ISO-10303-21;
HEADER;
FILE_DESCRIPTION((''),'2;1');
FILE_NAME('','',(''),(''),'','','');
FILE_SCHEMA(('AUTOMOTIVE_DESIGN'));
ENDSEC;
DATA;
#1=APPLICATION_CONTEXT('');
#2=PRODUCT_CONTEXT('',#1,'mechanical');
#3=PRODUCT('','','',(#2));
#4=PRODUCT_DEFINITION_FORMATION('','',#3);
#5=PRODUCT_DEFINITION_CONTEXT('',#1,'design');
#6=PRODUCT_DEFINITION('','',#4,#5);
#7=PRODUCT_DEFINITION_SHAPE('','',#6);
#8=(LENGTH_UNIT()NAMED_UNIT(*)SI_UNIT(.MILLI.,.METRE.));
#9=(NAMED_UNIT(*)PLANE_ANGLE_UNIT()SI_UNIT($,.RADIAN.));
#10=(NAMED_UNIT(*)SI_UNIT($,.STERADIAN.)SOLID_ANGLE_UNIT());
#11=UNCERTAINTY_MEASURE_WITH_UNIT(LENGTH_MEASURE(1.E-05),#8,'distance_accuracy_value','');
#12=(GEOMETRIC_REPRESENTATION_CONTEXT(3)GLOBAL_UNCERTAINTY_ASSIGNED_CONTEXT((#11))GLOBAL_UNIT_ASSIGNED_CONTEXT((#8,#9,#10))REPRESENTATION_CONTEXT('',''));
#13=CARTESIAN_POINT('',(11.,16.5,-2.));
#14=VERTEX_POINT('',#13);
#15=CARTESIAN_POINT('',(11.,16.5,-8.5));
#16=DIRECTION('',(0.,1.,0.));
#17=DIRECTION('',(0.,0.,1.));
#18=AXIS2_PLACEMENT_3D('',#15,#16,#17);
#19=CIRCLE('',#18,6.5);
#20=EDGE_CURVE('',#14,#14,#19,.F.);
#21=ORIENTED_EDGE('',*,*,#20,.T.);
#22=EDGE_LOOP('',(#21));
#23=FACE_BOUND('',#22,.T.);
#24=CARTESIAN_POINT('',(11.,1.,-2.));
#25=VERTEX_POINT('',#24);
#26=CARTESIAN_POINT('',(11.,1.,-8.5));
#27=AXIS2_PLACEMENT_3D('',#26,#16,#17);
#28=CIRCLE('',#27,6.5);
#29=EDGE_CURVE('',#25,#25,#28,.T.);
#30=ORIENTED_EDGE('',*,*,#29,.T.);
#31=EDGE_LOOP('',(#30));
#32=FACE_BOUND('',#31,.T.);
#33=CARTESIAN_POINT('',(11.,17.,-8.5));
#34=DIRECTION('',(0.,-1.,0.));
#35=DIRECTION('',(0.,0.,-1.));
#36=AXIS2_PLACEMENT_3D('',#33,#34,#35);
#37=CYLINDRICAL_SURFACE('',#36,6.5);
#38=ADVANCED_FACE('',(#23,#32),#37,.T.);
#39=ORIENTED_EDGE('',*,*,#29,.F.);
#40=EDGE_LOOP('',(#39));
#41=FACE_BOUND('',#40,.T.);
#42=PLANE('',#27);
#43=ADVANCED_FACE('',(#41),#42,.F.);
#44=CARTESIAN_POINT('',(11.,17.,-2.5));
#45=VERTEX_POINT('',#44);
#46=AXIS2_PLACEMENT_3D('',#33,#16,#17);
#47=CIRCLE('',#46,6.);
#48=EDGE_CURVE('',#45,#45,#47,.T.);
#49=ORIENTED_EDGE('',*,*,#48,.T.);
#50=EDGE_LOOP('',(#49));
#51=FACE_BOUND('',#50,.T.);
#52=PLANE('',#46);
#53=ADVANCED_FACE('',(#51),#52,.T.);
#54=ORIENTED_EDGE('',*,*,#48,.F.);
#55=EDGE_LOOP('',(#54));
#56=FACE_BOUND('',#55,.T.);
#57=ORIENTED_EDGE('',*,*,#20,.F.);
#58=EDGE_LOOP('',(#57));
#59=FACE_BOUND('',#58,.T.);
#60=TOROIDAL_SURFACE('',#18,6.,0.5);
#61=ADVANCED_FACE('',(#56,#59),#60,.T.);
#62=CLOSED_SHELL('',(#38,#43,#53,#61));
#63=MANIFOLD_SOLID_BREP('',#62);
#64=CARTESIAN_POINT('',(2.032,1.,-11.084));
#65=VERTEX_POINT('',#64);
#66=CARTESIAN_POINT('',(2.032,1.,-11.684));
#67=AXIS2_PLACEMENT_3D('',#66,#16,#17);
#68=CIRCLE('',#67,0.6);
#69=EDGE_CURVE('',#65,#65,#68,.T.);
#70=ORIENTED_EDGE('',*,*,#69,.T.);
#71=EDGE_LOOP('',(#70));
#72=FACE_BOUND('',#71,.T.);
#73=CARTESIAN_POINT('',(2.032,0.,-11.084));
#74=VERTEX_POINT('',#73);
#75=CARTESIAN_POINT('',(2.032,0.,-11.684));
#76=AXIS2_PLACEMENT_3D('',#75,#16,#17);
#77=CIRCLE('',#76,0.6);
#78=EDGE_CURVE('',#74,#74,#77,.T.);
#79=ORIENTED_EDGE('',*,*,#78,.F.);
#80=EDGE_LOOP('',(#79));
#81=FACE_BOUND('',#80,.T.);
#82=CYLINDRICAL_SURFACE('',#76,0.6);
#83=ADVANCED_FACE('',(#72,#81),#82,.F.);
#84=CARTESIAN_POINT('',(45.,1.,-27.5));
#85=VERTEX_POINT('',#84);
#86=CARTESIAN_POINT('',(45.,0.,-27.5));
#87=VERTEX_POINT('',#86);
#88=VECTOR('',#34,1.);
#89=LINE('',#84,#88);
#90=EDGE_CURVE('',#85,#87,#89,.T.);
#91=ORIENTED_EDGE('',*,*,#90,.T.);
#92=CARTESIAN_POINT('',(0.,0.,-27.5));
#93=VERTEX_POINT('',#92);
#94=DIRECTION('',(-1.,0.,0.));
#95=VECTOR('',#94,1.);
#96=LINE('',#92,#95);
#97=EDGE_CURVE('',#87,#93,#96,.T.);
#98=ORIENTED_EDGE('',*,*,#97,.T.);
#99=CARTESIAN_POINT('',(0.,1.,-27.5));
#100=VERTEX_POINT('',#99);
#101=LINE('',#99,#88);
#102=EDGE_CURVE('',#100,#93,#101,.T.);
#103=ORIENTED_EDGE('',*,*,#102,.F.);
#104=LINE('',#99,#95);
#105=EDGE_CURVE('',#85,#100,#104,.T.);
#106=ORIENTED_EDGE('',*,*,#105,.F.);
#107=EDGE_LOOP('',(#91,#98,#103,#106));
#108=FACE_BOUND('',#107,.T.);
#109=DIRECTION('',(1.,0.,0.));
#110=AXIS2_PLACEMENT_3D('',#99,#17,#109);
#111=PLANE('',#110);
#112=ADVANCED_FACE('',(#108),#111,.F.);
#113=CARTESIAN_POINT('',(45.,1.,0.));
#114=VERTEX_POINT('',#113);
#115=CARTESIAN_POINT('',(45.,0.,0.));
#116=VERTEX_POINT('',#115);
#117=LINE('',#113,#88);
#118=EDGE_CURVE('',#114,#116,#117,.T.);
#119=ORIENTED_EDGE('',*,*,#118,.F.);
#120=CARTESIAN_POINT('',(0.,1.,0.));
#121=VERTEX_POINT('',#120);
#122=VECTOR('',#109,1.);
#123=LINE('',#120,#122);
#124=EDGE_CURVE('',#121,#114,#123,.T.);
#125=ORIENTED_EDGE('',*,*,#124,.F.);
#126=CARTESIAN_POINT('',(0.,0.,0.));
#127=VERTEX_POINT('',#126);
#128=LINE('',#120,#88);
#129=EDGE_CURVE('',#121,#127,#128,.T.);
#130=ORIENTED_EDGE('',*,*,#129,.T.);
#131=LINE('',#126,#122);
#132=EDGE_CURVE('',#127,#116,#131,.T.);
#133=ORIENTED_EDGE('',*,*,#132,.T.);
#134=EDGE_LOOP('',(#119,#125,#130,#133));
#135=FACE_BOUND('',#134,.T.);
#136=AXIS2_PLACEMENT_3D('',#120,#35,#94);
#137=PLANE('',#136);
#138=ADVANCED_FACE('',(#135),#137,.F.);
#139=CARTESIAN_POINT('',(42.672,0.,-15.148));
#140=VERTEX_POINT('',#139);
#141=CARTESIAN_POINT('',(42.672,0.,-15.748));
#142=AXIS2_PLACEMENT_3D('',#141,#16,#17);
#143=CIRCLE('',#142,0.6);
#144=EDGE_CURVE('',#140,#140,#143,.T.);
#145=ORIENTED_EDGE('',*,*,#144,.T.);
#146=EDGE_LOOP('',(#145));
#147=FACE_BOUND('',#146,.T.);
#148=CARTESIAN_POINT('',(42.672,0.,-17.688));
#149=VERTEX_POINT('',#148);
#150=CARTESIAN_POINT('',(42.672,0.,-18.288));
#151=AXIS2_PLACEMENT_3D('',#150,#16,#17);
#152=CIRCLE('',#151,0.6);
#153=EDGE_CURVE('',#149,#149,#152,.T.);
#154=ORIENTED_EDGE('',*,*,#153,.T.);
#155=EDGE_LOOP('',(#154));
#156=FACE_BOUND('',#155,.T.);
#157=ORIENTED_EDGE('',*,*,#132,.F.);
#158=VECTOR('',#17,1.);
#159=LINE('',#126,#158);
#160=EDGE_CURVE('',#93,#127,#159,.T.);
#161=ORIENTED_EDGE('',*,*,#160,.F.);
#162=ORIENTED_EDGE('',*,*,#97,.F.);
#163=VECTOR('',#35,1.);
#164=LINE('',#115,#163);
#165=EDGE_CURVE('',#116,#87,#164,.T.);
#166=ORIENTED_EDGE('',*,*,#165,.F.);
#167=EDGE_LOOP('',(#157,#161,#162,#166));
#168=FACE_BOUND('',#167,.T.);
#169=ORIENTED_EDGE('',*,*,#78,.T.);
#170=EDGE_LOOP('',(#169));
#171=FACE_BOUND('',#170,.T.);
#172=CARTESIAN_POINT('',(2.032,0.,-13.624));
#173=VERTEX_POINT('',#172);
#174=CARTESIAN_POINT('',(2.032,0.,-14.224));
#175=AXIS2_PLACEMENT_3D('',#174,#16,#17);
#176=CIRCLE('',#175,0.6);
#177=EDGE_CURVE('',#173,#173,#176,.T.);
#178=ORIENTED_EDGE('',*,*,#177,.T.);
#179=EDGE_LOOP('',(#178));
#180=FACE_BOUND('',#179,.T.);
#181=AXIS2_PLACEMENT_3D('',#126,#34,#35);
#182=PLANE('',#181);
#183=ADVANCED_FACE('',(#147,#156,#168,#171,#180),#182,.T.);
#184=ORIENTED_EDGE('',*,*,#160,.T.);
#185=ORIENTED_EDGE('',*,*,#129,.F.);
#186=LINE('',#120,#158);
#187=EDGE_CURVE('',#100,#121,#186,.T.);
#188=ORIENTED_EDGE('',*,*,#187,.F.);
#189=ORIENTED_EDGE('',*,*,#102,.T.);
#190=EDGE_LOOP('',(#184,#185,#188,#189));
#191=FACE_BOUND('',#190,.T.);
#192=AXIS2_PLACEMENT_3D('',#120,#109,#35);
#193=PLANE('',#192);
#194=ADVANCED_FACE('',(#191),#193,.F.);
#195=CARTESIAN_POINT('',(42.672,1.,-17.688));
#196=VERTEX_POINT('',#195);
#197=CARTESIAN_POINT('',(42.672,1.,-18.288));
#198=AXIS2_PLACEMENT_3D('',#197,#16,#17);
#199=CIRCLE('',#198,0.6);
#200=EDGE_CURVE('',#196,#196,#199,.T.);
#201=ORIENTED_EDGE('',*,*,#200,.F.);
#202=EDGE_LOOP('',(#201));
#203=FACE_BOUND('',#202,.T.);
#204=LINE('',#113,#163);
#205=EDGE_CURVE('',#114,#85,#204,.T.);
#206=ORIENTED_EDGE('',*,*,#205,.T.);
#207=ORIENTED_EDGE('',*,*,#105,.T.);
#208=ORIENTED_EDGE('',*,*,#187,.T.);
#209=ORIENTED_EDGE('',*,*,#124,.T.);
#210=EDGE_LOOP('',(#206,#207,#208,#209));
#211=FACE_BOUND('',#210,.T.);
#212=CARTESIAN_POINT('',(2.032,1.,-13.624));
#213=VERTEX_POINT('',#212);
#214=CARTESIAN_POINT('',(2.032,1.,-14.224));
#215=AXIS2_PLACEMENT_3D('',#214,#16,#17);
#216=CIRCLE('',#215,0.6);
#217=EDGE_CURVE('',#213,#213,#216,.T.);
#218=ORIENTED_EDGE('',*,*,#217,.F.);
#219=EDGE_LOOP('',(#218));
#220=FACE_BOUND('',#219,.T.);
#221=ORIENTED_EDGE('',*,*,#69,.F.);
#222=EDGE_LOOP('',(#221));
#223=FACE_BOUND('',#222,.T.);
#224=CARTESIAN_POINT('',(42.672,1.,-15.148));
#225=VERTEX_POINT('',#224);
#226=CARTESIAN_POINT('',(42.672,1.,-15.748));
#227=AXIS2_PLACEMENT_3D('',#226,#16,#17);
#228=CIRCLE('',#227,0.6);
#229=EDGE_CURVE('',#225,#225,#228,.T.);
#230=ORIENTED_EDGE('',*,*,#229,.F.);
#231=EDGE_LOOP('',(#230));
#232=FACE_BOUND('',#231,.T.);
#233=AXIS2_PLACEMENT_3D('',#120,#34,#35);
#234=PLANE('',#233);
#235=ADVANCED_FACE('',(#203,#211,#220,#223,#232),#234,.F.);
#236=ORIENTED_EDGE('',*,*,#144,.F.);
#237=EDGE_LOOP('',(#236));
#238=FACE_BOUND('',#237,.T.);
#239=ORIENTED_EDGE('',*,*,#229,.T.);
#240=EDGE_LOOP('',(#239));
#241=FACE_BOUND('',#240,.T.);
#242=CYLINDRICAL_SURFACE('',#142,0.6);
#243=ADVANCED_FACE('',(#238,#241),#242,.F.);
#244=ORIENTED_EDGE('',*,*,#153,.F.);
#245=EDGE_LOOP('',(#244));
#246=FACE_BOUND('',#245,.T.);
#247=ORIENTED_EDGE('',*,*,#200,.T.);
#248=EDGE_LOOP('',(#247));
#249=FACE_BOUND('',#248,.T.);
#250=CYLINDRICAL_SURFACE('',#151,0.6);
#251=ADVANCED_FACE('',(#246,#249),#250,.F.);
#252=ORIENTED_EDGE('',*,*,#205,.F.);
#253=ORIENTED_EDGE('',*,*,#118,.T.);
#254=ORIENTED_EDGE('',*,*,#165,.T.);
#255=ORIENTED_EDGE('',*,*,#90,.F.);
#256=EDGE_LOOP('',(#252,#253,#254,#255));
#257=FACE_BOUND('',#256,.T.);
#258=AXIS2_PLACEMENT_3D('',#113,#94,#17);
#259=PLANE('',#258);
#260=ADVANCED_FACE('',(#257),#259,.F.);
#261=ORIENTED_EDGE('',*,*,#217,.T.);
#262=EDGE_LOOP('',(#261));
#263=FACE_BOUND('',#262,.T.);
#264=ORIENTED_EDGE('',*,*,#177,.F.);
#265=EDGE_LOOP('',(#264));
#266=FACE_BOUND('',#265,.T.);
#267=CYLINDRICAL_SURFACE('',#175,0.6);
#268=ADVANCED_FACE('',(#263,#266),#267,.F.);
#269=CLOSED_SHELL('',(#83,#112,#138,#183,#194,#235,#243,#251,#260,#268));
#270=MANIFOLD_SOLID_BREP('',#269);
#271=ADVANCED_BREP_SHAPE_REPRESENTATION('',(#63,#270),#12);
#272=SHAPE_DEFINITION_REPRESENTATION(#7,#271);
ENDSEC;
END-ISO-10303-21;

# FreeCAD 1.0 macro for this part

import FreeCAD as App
import Part
import Sketcher
from FreeCAD import Vector
Q = App.Units.Quantity


def edges_at(feature, points):
    """Names of the edges that pass closest to the given points."""
    edges = feature.Shape.Edges
    near = lambda p: min(range(len(edges)), key=lambda i: edges[i].distToShape(Part.Vertex(*p))[0])
    return sorted({f"Edge{near(p) + 1}" for p in points})


def add_polygon(sketch, points):
    """Adds a closed chain of lines whose ends are joined by coincident constraints."""
    first, n = sketch.GeometryCount, len(points)
    for a, b in zip(points, points[1:] + points[:1]):
        sketch.addGeometry(Part.LineSegment(App.Vector(*a, 0), App.Vector(*b, 0)), False)
    for i in range(n):
        sketch.addConstraint(Sketcher.Constraint("Coincident", first + i, 2, first + (i + 1) % n, 1))

doc = App.newDocument("Part")
params = doc.addObject("Spreadsheet::Sheet", "Params")
for row, (alias, value) in enumerate([
    ("sketch1_width", "45 mm"),
    ("sketch1_height", "27.5 mm"),
    ("pad1_length", "1 mm"),
    ("sketch2_diameter", "1.2 mm"),
    ("sketch3_diameter", "13 mm"),
    ("pad2_length", "16 mm"),
    ("fillet_radius", "0.5 mm"),
], start=1):
    params.set(f"A{row}", alias)
    params.set(f"B{row}", "=" + value)
    params.setAlias(f"B{row}", alias)

body = doc.addObject("PartDesign::Body", "Body")

sketch1 = doc.addObject("Sketcher::SketchObject", "Sketch")
body.addObject(sketch1)
sketch1.AttachmentSupport = (doc.XZ_Plane, [""])
sketch1.MapMode = "FlatFace"
add_polygon(sketch1, [(0, -28), (0, 0), (45, 0), (45, -28)])
sketch1.addConstraint([
    Sketcher.Constraint("Vertical", 0),
    Sketcher.Constraint("Horizontal", 1),
    Sketcher.Constraint("Vertical", 2),
    Sketcher.Constraint("Horizontal", 3),
    Sketcher.Constraint("Coincident", 0, 2, -1, 1),
    Sketcher.Constraint("DistanceX", 1, 1, 1, 2, Q("45 mm")),
    Sketcher.Constraint("DistanceY", 0, 1, 0, 2, Q("27.5 mm")),
])
sketch1.setExpression("Constraints[9]", "Params.sketch1_width")
sketch1.setExpression("Constraints[10]", "Params.sketch1_height")
pad1 = doc.addObject("PartDesign::Pad", "Pad")
body.addObject(pad1)
pad1.Profile = sketch1
pad1.setExpression("Length", "Params.pad1_length")
pad1.Reversed = True

sketch2 = doc.addObject("Sketcher::SketchObject", "Sketch001")
body.addObject(sketch2)
sketch2.AttachmentSupport = (doc.XZ_Plane, [""])
sketch2.MapMode = "FlatFace"
sketch2.AttachmentOffset = App.Placement(Vector(0, 0, -1), App.Rotation())
sketch2.addGeometry([
    Part.Circle(Vector(2, -14.2, 0), Vector(0, 0, 1), 0.6),
    Part.Circle(Vector(2, -11.7, 0), Vector(0, 0, 1), 0.6),
    Part.Circle(Vector(42.7, -18.3, 0), Vector(0, 0, 1), 0.6),
    Part.Circle(Vector(42.7, -15.7, 0), Vector(0, 0, 1), 0.6),
], False)
sketch2.addConstraint([
    Sketcher.Constraint("Equal", 0, 1),
    Sketcher.Constraint("Equal", 1, 2),
    Sketcher.Constraint("Equal", 2, 3),
    Sketcher.Constraint("Vertical", 0, 3, 1, 3),
    Sketcher.Constraint("Vertical", 2, 3, 3, 3),
    Sketcher.Constraint("Diameter", 0, Q("1.2 mm")),
    Sketcher.Constraint("DistanceY", 0, 3, 1, 3, Q("2.54 mm")),
    Sketcher.Constraint("DistanceX", 0, 3, 2, 3, Q("40.64 mm")),
    Sketcher.Constraint("DistanceY", 2, 3, 3, 3, Q("2.54 mm")),
    Sketcher.Constraint("DistanceX", -1, 1, 0, 3, Q("2.032 mm")),
    Sketcher.Constraint("DistanceY", 0, 3, -1, 1, Q("14.224 mm")),
    Sketcher.Constraint("DistanceY", 2, 3, -1, 1, Q("18.288 mm")),
])
sketch2.setExpression("Constraints[5]", "Params.sketch2_diameter")
pocket1 = doc.addObject("PartDesign::Pocket", "Pocket")
body.addObject(pocket1)
pocket1.Profile = sketch2
pocket1.Type = "ThroughAll"
pocket1.Reversed = True
body2 = doc.addObject("PartDesign::Body", "Body001")

sketch3 = doc.addObject("Sketcher::SketchObject", "Sketch002")
body2.addObject(sketch3)
sketch3.AttachmentSupport = (doc.getObject("XZ_Plane001"), [""])
sketch3.MapMode = "FlatFace"
sketch3.AttachmentOffset = App.Placement(Vector(0, 0, -1), App.Rotation())
sketch3.addGeometry(Part.Circle(Vector(11, -8, 0), Vector(0, 0, 1), 6), False)
sketch3.addConstraint([
    Sketcher.Constraint("Diameter", 0, Q("13 mm")),
    Sketcher.Constraint("DistanceX", -1, 1, 0, 3, Q("11 mm")),
    Sketcher.Constraint("DistanceY", 0, 3, -1, 1, Q("8.5 mm")),
])
sketch3.setExpression("Constraints[0]", "Params.sketch3_diameter")
pad2 = doc.addObject("PartDesign::Pad", "Pad001")
body2.addObject(pad2)
pad2.Profile = sketch3
pad2.setExpression("Length", "Params.pad2_length")
pad2.Reversed = True
doc.recompute()

fillet = doc.addObject("PartDesign::Fillet", "Fillet")
body2.addObject(fillet)
fillet.Base = (pad2, edges_at(pad2, [(11, 17, -15)]))
fillet.setExpression("Radius", "Params.fillet_radius")

doc.recompute()
